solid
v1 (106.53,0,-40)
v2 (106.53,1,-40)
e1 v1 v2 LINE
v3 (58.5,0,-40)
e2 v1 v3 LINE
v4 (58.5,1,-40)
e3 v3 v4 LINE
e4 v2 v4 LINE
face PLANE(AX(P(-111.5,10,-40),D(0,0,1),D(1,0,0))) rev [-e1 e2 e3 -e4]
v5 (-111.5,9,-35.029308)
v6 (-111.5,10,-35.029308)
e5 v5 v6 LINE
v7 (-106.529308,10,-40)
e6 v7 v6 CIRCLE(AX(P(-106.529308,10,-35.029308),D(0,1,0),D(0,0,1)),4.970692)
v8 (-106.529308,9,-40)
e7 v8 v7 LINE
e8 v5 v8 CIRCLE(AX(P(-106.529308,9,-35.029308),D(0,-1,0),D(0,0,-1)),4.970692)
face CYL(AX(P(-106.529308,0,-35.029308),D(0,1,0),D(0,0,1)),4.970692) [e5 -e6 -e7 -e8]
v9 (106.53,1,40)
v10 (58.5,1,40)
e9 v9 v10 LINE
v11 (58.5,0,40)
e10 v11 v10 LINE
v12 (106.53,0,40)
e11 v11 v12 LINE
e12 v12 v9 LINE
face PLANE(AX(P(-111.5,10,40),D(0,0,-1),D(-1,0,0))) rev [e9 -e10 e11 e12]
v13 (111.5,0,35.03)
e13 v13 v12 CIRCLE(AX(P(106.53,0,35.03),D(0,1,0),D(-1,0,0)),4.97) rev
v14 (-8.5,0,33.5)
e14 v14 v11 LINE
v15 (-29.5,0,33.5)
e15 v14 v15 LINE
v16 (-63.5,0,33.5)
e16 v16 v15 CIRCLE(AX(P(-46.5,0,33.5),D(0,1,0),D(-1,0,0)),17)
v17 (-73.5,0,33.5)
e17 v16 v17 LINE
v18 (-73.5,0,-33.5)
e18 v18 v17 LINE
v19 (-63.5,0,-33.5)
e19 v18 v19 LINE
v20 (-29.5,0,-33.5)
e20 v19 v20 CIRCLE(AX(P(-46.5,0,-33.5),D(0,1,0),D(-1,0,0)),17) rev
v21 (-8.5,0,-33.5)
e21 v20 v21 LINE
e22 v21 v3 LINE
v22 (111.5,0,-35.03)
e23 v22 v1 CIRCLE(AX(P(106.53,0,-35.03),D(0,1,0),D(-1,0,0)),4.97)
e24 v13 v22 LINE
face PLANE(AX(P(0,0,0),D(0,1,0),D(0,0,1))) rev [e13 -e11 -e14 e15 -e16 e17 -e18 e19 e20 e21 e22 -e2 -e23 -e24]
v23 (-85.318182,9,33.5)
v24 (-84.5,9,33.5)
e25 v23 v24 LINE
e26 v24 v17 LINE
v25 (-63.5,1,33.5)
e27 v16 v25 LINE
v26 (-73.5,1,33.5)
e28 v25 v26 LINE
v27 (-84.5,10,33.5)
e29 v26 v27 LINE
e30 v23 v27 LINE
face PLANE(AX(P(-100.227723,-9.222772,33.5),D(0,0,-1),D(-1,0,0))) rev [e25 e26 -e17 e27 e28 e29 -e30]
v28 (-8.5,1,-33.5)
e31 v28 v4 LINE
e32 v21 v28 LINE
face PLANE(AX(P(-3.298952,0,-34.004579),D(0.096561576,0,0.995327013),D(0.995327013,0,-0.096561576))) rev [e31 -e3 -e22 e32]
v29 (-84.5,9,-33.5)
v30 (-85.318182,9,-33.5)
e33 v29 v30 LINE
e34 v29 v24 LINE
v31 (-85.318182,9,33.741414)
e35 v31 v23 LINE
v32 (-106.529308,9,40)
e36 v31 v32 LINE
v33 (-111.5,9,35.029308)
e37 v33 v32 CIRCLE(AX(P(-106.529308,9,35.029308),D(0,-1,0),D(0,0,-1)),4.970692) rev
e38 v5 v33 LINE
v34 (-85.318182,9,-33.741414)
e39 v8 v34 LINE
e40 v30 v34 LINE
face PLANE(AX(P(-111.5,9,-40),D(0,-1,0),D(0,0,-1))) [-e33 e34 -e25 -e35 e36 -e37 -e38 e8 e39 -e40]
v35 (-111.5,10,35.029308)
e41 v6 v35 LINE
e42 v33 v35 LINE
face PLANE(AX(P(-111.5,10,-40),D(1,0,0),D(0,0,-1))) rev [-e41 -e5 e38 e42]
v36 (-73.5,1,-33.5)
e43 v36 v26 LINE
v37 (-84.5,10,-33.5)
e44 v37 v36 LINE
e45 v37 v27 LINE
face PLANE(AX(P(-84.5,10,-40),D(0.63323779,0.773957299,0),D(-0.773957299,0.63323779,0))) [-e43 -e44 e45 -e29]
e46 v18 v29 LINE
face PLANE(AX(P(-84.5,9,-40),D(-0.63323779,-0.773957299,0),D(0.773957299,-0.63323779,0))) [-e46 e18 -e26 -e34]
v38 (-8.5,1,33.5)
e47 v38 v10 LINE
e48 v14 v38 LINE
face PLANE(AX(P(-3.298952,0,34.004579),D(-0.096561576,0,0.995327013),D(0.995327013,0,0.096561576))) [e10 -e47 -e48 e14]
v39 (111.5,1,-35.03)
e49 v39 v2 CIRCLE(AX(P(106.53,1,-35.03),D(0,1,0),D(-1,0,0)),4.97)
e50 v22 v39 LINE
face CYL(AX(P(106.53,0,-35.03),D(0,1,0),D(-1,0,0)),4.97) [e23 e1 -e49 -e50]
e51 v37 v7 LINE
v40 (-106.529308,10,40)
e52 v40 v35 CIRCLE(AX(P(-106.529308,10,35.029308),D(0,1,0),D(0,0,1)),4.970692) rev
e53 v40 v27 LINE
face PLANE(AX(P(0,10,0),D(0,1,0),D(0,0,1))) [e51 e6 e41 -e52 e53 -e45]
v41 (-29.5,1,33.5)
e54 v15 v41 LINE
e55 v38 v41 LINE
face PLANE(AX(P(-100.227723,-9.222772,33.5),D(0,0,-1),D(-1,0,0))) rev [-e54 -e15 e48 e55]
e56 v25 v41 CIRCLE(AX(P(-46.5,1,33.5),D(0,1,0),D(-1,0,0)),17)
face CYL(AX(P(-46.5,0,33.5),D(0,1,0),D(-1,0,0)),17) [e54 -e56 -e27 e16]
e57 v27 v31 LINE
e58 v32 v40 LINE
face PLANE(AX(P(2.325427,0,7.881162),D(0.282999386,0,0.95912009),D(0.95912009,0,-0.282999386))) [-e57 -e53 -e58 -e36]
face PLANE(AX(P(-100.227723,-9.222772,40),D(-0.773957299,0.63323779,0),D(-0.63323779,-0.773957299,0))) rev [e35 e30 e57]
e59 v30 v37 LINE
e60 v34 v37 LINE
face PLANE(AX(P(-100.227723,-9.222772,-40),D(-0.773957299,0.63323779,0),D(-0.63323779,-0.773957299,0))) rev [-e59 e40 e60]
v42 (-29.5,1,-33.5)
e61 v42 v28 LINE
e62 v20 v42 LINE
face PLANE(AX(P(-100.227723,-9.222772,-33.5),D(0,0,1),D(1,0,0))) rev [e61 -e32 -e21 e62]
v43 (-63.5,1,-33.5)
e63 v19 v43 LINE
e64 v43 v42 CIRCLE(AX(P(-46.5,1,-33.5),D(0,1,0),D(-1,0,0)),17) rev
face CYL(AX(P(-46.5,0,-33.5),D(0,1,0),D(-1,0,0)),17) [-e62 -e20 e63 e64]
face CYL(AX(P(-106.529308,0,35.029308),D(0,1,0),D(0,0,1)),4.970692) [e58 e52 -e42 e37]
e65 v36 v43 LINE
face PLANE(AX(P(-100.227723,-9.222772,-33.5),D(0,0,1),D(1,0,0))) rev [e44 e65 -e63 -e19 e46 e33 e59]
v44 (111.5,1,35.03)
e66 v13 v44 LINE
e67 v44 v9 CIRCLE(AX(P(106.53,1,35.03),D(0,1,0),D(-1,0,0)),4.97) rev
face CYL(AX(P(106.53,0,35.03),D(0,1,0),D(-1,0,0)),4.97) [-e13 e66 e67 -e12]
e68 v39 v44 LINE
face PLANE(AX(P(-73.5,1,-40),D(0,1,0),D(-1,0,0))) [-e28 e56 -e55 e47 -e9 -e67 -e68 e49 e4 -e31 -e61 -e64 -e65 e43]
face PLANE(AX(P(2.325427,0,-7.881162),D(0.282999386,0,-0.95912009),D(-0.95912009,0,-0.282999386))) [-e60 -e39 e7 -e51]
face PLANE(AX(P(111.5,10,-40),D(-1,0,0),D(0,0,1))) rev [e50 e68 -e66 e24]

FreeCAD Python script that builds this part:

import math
import FreeCAD as App
import Part
import Sketcher

V = App.Vector
Q = App.Units.Quantity

doc = App.newDocument("Part")
body = doc.addObject("PartDesign::Body", "Body")

# Sketch on XZ plane
sketch1 = body.newObject("Sketcher::SketchObject", "Sketch")
sketch1.AttachmentSupport = (doc.getObject("XZ_Plane"), [""])
sketch1.MapMode = "FlatFace"
sketch1.addGeometry([
    Part.LineSegment(V(-112, -40, 0), V(-112, 40, 0)),
    Part.LineSegment(V(-112, 40, 0), V(112, 40, 0)),
    Part.LineSegment(V(112, 40, 0), V(112, -40, 0)),
    Part.LineSegment(V(112, -40, 0), V(-112, -40, 0)),
], False)
sketch1.addConstraint([
    Sketcher.Constraint("Coincident", 0, 2, 1, 1),
    Sketcher.Constraint("Coincident", 1, 2, 2, 1),
    Sketcher.Constraint("Coincident", 2, 2, 3, 1),
    Sketcher.Constraint("Coincident", 3, 2, 0, 1),
    Sketcher.Constraint("Vertical", 0),
    Sketcher.Constraint("Horizontal", 1),
    Sketcher.Constraint("Vertical", 2),
    Sketcher.Constraint("Horizontal", 3),
    Sketcher.Constraint("Symmetric", 0, 2, 2, 2, -1, 1),
    Sketcher.Constraint("DistanceX", 1, 1, 1, 2, Q("223 mm")),
    Sketcher.Constraint("DistanceY", 0, 1, 0, 2, Q("80 mm")),
])
pad1 = body.newObject("PartDesign::Pad", "Pad")
pad1.Profile = sketch1
pad1.Length = 10
pad1.Reversed = True

# Sketch on XY plane
sketch2 = body.newObject("Sketcher::SketchObject", "Sketch001")
sketch2.AttachmentSupport = (doc.getObject("XY_Plane"), [""])
sketch2.MapMode = "FlatFace"
sketch2.AttachmentOffset = App.Placement(V(0, 0, 40), App.Rotation())
sketch2.addGeometry([
    Part.LineSegment(V(-136.2, 34.7, 0), V(-136.2, -24.7, 0)),  # 0
    Part.LineSegment(V(-136.2, -24.7, 0), V(136.2, -24.7, 0)),  # 1
    Part.LineSegment(V(136.2, -24.7, 0), V(136.2, 34.7, 0)),  # 2
    Part.LineSegment(V(136.2, 34.7, 0), V(-136.2, 34.7, 0)),  # 3
    Part.LineSegment(V(-111.5, 9, 0), V(-111.5, 10, 0)),  # 4
    Part.LineSegment(V(-111.5, 10, 0), V(-84.5, 10, 0)),  # 5
    Part.LineSegment(V(-84.5, 10, 0), V(-73.5, 1, 0)),  # 6
    Part.LineSegment(V(-73.5, 1, 0), V(111.5, 1, 0)),  # 7
    Part.LineSegment(V(111.5, 1, 0), V(111.5, 0, 0)),  # 8
    Part.LineSegment(V(111.5, 0, 0), V(-73.5, 0, 0)),  # 9
    Part.LineSegment(V(-73.5, 0, 0), V(-84.5, 9, 0)),  # 10
    Part.LineSegment(V(-84.5, 9, 0), V(-111.5, 9, 0)),  # 11
], False)
sketch2.addConstraint([
    Sketcher.Constraint("Coincident", 0, 2, 1, 1),
    Sketcher.Constraint("Coincident", 1, 2, 2, 1),
    Sketcher.Constraint("Coincident", 2, 2, 3, 1),
    Sketcher.Constraint("Coincident", 3, 2, 0, 1),
    Sketcher.Constraint("Coincident", 4, 2, 5, 1),
    Sketcher.Constraint("Coincident", 5, 2, 6, 1),
    Sketcher.Constraint("Coincident", 6, 2, 7, 1),
    Sketcher.Constraint("Coincident", 7, 2, 8, 1),
    Sketcher.Constraint("Coincident", 8, 2, 9, 1),
    Sketcher.Constraint("Coincident", 9, 2, 10, 1),
    Sketcher.Constraint("Coincident", 10, 2, 11, 1),
    Sketcher.Constraint("Coincident", 11, 2, 4, 1),
    Sketcher.Constraint("Vertical", 0),
    Sketcher.Constraint("Horizontal", 1),
    Sketcher.Constraint("Vertical", 2),
    Sketcher.Constraint("Horizontal", 3),
    Sketcher.Constraint("Vertical", 4),
    Sketcher.Constraint("Horizontal", 5),
    Sketcher.Constraint("Horizontal", 7),
    Sketcher.Constraint("Vertical", 8),
    Sketcher.Constraint("Horizontal", 9),
    Sketcher.Constraint("Horizontal", 11),
    Sketcher.Constraint("PointOnObject", 8, 2, -1),
    Sketcher.Constraint("Parallel", 6, 10),
    Sketcher.Constraint("Vertical", 6, 2, 9, 2),
    Sketcher.Constraint("Vertical", 5, 2, 10, 2),
    Sketcher.Constraint("DistanceX", 5, 1, 5, 2, Q("27 mm")),
    Sketcher.Constraint("DistanceX", 7, 1, 7, 2, Q("185 mm")),
    Sketcher.Constraint("DistanceY", 4, 1, 4, 2, Q("1 mm")),
    Sketcher.Constraint("DistanceY", -1, 1, 4, 2, Q("10 mm")),
    Sketcher.Constraint("DistanceX", 5, 2, 6, 2, Q("11 mm")),
    Sketcher.Constraint("DistanceX", 4, 2, -1, 1, Q("111.5 mm")),
    Sketcher.Constraint("DistanceX", 1, 1, 1, 2, Q("272.426 mm")),
    Sketcher.Constraint("DistanceY", 0, 2, 0, 1, Q("59.426 mm")),
    Sketcher.Constraint("DistanceX", 0, 2, -1, 1, Q("136.213 mm")),
    Sketcher.Constraint("DistanceY", 0, 2, -1, 1, Q("24.713 mm")),
])
pocket1 = body.newObject("PartDesign::Pocket", "Pocket")
pocket1.Profile = sketch2
pocket1.Type = "ThroughAll"

# Sketch on XZ plane
sketch3 = body.newObject("Sketcher::SketchObject", "Sketch002")
sketch3.AttachmentSupport = (doc.getObject("XZ_Plane"), [""])
sketch3.MapMode = "FlatFace"
sketch3.AttachmentOffset = App.Placement(V(0, 0, -10), App.Rotation())
sketch3.addGeometry([
    Part.LineSegment(V(-111.5, -40, 0), V(-111.5, -35, 0)),  # 0
    Part.ArcOfCircle(Part.Circle(V(-106.5, -35, 0), V(0, 0, 1), 5), math.radians(180), math.radians(270)),  # 1
    Part.LineSegment(V(-106.5, -40, 0), V(-111.5, -40, 0)),  # 2
    Part.ArcOfCircle(Part.Circle(V(-106.5, 35, 0), V(0, 0, 1), 5), math.radians(90), math.radians(180)),  # 3
    Part.LineSegment(V(-111.5, 35, 0), V(-111.5, 40, 0)),  # 4
    Part.LineSegment(V(-111.5, 40, 0), V(-106.5, 40, 0)),  # 5
], False)
sketch3.addConstraint([
    Sketcher.Constraint("Tangent", 0, 2, 1, 1),
    Sketcher.Constraint("Tangent", 1, 2, 2, 1),
    Sketcher.Constraint("Coincident", 2, 2, 0, 1),
    Sketcher.Constraint("Tangent", 3, 2, 4, 1),
    Sketcher.Constraint("Coincident", 4, 2, 5, 1),
    Sketcher.Constraint("Tangent", 5, 2, 3, 1),
    Sketcher.Constraint("Vertical", 0),
    Sketcher.Constraint("Horizontal", 2),
    Sketcher.Constraint("Vertical", 4),
    Sketcher.Constraint("Horizontal", 5),
    Sketcher.Constraint("Equal", 1, 3),
    Sketcher.Constraint("Symmetric", 1, 3, 3, 3, -1),
    Sketcher.Constraint("DistanceY", 1, 2, -1, 1, Q("40 mm")),
    Sketcher.Constraint("DistanceX", 0, 2, -1, 1, Q("111.5 mm")),
    Sketcher.Constraint("Radius", 1, Q("4.970692 mm")),
])
pocket2 = body.newObject("PartDesign::Pocket", "Pocket001")
pocket2.Profile = sketch3
pocket2.Type = "ThroughAll"
pocket2.Reversed = True

# Sketch on XZ plane
sketch4 = body.newObject("Sketcher::SketchObject", "Sketch003")
sketch4.AttachmentSupport = (doc.getObject("XZ_Plane"), [""])
sketch4.MapMode = "FlatFace"
sketch4.AttachmentOffset = App.Placement(V(0, 0, -10), App.Rotation())
sketch4.addGeometry([
    Part.LineSegment(V(-107, -40, 0), V(-84, -34, 0)),  # 0
    Part.LineSegment(V(-84, -34, 0), V(-84, -40, 0)),  # 1
    Part.LineSegment(V(-84, -40, 0), V(-107, -40, 0)),  # 2
    Part.LineSegment(V(-84, 40, 0), V(-84, 34, 0)),  # 3
    Part.LineSegment(V(-84, 34, 0), V(-107, 40, 0)),  # 4
    Part.LineSegment(V(-107, 40, 0), V(-84, 40, 0)),  # 5
], False)
sketch4.addConstraint([
    Sketcher.Constraint("Coincident", 0, 2, 1, 1),
    Sketcher.Constraint("Coincident", 1, 2, 2, 1),
    Sketcher.Constraint("Coincident", 2, 2, 0, 1),
    Sketcher.Constraint("Coincident", 3, 2, 4, 1),
    Sketcher.Constraint("Coincident", 4, 2, 5, 1),
    Sketcher.Constraint("Coincident", 5, 2, 3, 1),
    Sketcher.Constraint("Vertical", 1),
    Sketcher.Constraint("Horizontal", 2),
    Sketcher.Constraint("Vertical", 3),
    Sketcher.Constraint("Horizontal", 5),
    Sketcher.Constraint("Symmetric", 0, 2, 3, 2, -1),
    Sketcher.Constraint("Symmetric", 2, 2, 4, 2, -1),
    Sketcher.Constraint("DistanceY", 1, 2, 1, 1, Q("6.5 mm")),
    Sketcher.Constraint("DistanceY", 1, 2, -1, 1, Q("40 mm")),
    Sketcher.Constraint("DistanceX", 0, 2, -1, 1, Q("84.5 mm")),
    Sketcher.Constraint("DistanceX", 2, 2, 2, 1, Q("22.029308 mm")),
])
pocket3 = body.newObject("PartDesign::Pocket", "Pocket002")
pocket3.Profile = sketch4
pocket3.Type = "ThroughAll"
pocket3.Reversed = True

# Sketch on an angled plane
sketch5 = body.newObject("Sketcher::SketchObject", "Sketch004")
sketch5.Placement = App.Placement(V(-28.982673, -35.423267, 0), App.Rotation(V(0.773957299, -0.63323779, 0), V(0, 0, -0.999999999), V(0.63323779, 0.773957299, 0), "ZXY"))
sketch5.addGeometry([
    Part.LineSegment(V(-72, -33, 0), V(-72, -40, 0)),  # 0
    Part.LineSegment(V(-72, -40, 0), V(-58, -40, 0)),  # 1
    Part.LineSegment(V(-58, -40, 0), V(-58, -33, 0)),  # 2
    Part.LineSegment(V(-58, -33, 0), V(-72, -33, 0)),  # 3
    Part.LineSegment(V(-72, 40, 0), V(-72, 33, 0)),  # 4
    Part.LineSegment(V(-72, 33, 0), V(-58, 33, 0)),  # 5
    Part.LineSegment(V(-58, 33, 0), V(-58, 40, 0)),  # 6
    Part.LineSegment(V(-58, 40, 0), V(-72, 40, 0)),  # 7
], False)
sketch5.addConstraint([
    Sketcher.Constraint("Coincident", 0, 2, 1, 1),
    Sketcher.Constraint("Coincident", 1, 2, 2, 1),
    Sketcher.Constraint("Coincident", 2, 2, 3, 1),
    Sketcher.Constraint("Coincident", 3, 2, 0, 1),
    Sketcher.Constraint("Coincident", 4, 2, 5, 1),
    Sketcher.Constraint("Coincident", 5, 2, 6, 1),
    Sketcher.Constraint("Coincident", 6, 2, 7, 1),
    Sketcher.Constraint("Coincident", 7, 2, 4, 1),
    Sketcher.Constraint("Vertical", 0),
    Sketcher.Constraint("Horizontal", 1),
    Sketcher.Constraint("Vertical", 2),
    Sketcher.Constraint("Horizontal", 3),
    Sketcher.Constraint("Vertical", 4),
    Sketcher.Constraint("Horizontal", 5),
    Sketcher.Constraint("Vertical", 6),
    Sketcher.Constraint("Horizontal", 7),
    Sketcher.Constraint("Symmetric", 3, 2, 4, 2, -1),
    Sketcher.Constraint("Symmetric", 1, 2, 6, 2, -1),
    Sketcher.Constraint("DistanceY", 0, 2, 0, 1, Q("6.5 mm")),
    Sketcher.Constraint("DistanceY", 0, 2, -1, 1, Q("40 mm")),
    Sketcher.Constraint("DistanceX", 1, 1, 1, 2, Q("14.21267 mm")),
    Sketcher.Constraint("DistanceX", 1, 2, -1, 1, Q("57.519099 mm")),
])
pocket4 = body.newObject("PartDesign::Pocket", "Pocket003")
pocket4.Profile = sketch5
pocket4.Type = "ThroughAll"

# Sketch on XZ plane
sketch6 = body.newObject("Sketcher::SketchObject", "Sketch005")
sketch6.AttachmentSupport = (doc.getObject("XZ_Plane"), [""])
sketch6.MapMode = "FlatFace"
sketch6.AttachmentOffset = App.Placement(V(0, 0, -1), App.Rotation())
sketch6.addGeometry([
    Part.LineSegment(V(-74, -40, 0), V(-74, -34, 0)),  # 0
    Part.LineSegment(V(-74, -34, 0), V(-8, -34, 0)),  # 1
    Part.LineSegment(V(-8, -34, 0), V(-8, -40, 0)),  # 2
    Part.LineSegment(V(-8, -40, 0), V(-74, -40, 0)),  # 3
    Part.LineSegment(V(-74, 34, 0), V(-74, 40, 0)),  # 4
    Part.LineSegment(V(-74, 40, 0), V(-8, 40, 0)),  # 5
    Part.LineSegment(V(-8, 40, 0), V(-8, 34, 0)),  # 6
    Part.LineSegment(V(-8, 34, 0), V(-74, 34, 0)),  # 7
], False)
sketch6.addConstraint([
    Sketcher.Constraint("Coincident", 0, 2, 1, 1),
    Sketcher.Constraint("Coincident", 1, 2, 2, 1),
    Sketcher.Constraint("Coincident", 2, 2, 3, 1),
    Sketcher.Constraint("Coincident", 3, 2, 0, 1),
    Sketcher.Constraint("Coincident", 4, 2, 5, 1),
    Sketcher.Constraint("Coincident", 5, 2, 6, 1),
    Sketcher.Constraint("Coincident", 6, 2, 7, 1),
    Sketcher.Constraint("Coincident", 7, 2, 4, 1),
    Sketcher.Constraint("Vertical", 0),
    Sketcher.Constraint("Horizontal", 1),
    Sketcher.Constraint("Vertical", 2),
    Sketcher.Constraint("Horizontal", 3),
    Sketcher.Constraint("Vertical", 4),
    Sketcher.Constraint("Horizontal", 5),
    Sketcher.Constraint("Vertical", 6),
    Sketcher.Constraint("Horizontal", 7),
    Sketcher.Constraint("Symmetric", 3, 2, 4, 2, -1),
    Sketcher.Constraint("Symmetric", 1, 2, 6, 2, -1),
    Sketcher.Constraint("DistanceX", 1, 1, 1, 2, Q("65 mm")),
    Sketcher.Constraint("DistanceY", 0, 1, 0, 2, Q("6.5 mm")),
    Sketcher.Constraint("DistanceY", 2, 2, -1, 1, Q("40 mm")),
    Sketcher.Constraint("DistanceX", 0, 2, -1, 1, Q("73.5 mm")),
])
pocket5 = body.newObject("PartDesign::Pocket", "Pocket004")
pocket5.Profile = sketch6
pocket5.Type = "ThroughAll"
pocket5.Reversed = True

# Sketch on an angled plane
sketch7 = body.newObject("Sketcher::SketchObject", "Sketch006")
sketch7.Placement = App.Placement(V(-29.472772, -36.022277, 0), App.Rotation(V(0.773957299, -0.63323779, 0), V(0, 0, 0.999999999), V(-0.63323779, -0.773957299, 0), "ZXY"))
sketch7.addGeometry([
    Part.LineSegment(V(-57.5, -33.5, 0), V(-57.5, -40, 0)),  # 0
    Part.LineSegment(V(-57.5, -40, 0), V(-56.9, -40, 0)),  # 1
    Part.LineSegment(V(-56.9, -40, 0), V(-56.9, -33.5, 0)),  # 2
    Part.LineSegment(V(-56.9, -33.5, 0), V(-57.5, -33.5, 0)),  # 3
    Part.LineSegment(V(-57.5, 40, 0), V(-57.5, 33.5, 0)),  # 4
    Part.LineSegment(V(-57.5, 33.5, 0), V(-56.9, 33.5, 0)),  # 5
    Part.LineSegment(V(-56.9, 33.5, 0), V(-56.9, 40, 0)),  # 6
    Part.LineSegment(V(-56.9, 40, 0), V(-57.5, 40, 0)),  # 7
], False)
sketch7.addConstraint([
    Sketcher.Constraint("Coincident", 0, 2, 1, 1),
    Sketcher.Constraint("Coincident", 1, 2, 2, 1),
    Sketcher.Constraint("Coincident", 2, 2, 3, 1),
    Sketcher.Constraint("Coincident", 3, 2, 0, 1),
    Sketcher.Constraint("Coincident", 4, 2, 5, 1),
    Sketcher.Constraint("Coincident", 5, 2, 6, 1),
    Sketcher.Constraint("Coincident", 6, 2, 7, 1),
    Sketcher.Constraint("Coincident", 7, 2, 4, 1),
    Sketcher.Constraint("Vertical", 0),
    Sketcher.Constraint("Horizontal", 1),
    Sketcher.Constraint("Vertical", 2),
    Sketcher.Constraint("Horizontal", 3),
    Sketcher.Constraint("Vertical", 4),
    Sketcher.Constraint("Horizontal", 5),
    Sketcher.Constraint("Vertical", 6),
    Sketcher.Constraint("Horizontal", 7),
    Sketcher.Constraint("Symmetric", 3, 2, 4, 2, -1),
    Sketcher.Constraint("Symmetric", 1, 2, 6, 2, -1),
    Sketcher.Constraint("DistanceY", 0, 2, 0, 1, Q("6.5 mm")),
    Sketcher.Constraint("DistanceY", 0, 2, -1, 1, Q("40 mm")),
    Sketcher.Constraint("DistanceX", 0, 2, -1, 1, Q("57.519099 mm")),
    Sketcher.Constraint("DistanceX", 1, 1, 1, 2, Q("0.633238 mm")),
])
pocket6 = body.newObject("PartDesign::Pocket", "Pocket005")
pocket6.Profile = sketch7
pocket6.Type = "ThroughAll"

# Sketch on XZ plane
sketch8 = body.newObject("Sketcher::SketchObject", "Sketch007")
sketch8.AttachmentSupport = (doc.getObject("XZ_Plane"), [""])
sketch8.MapMode = "FlatFace"
sketch8.AttachmentOffset = App.Placement(V(0, 0, -1), App.Rotation())
sketch8.addGeometry([
    Part.LineSegment(V(-8, 40, 0), V(58, 40, 0)),  # 0
    Part.LineSegment(V(58, 40, 0), V(-8, 34, 0)),  # 1
    Part.LineSegment(V(-8, 34, 0), V(-8, 40, 0)),  # 2
    Part.LineSegment(V(-8, -34, 0), V(58, -40, 0)),  # 3
    Part.LineSegment(V(58, -40, 0), V(-8, -40, 0)),  # 4
    Part.LineSegment(V(-8, -40, 0), V(-8, -34, 0)),  # 5
], False)
sketch8.addConstraint([
    Sketcher.Constraint("Coincident", 0, 2, 1, 1),
    Sketcher.Constraint("Coincident", 1, 2, 2, 1),
    Sketcher.Constraint("Coincident", 2, 2, 0, 1),
    Sketcher.Constraint("Coincident", 3, 2, 4, 1),
    Sketcher.Constraint("Coincident", 4, 2, 5, 1),
    Sketcher.Constraint("Coincident", 5, 2, 3, 1),
    Sketcher.Constraint("Horizontal", 0),
    Sketcher.Constraint("Vertical", 2),
    Sketcher.Constraint("Horizontal", 4),
    Sketcher.Constraint("Vertical", 5),
    Sketcher.Constraint("Symmetric", 0, 2, 3, 2, -1),
    Sketcher.Constraint("Symmetric", 1, 2, 5, 2, -1),
    Sketcher.Constraint("DistanceX", 0, 1, 0, 2, Q("67 mm")),
    Sketcher.Constraint("DistanceY", 2, 1, 2, 2, Q("6.5 mm")),
    Sketcher.Constraint("DistanceY", -1, 1, 0, 2, Q("40 mm")),
    Sketcher.Constraint("DistanceX", -1, 1, 0, 2, Q("58.5 mm")),
])
pocket7 = body.newObject("PartDesign::Pocket", "Pocket006")
pocket7.Profile = sketch8
pocket7.Type = "ThroughAll"
pocket7.Reversed = True

# Sketch on XZ plane
sketch9 = body.newObject("Sketcher::SketchObject", "Sketch008")
sketch9.AttachmentSupport = (doc.getObject("XZ_Plane"), [""])
sketch9.MapMode = "FlatFace"
sketch9.AttachmentOffset = App.Placement(V(0, 0, -1), App.Rotation())
sketch9.addGeometry([
    Part.LineSegment(V(111.5, -40, 0), V(106.5, -40, 0)),  # 0
    Part.ArcOfCircle(Part.Circle(V(106.5, -35, 0), V(0, 0, 1), 5), math.radians(-90), math.radians(0)),  # 1
    Part.LineSegment(V(111.5, -35, 0), V(111.5, -40, 0)),  # 2
    Part.LineSegment(V(111.5, 40, 0), V(111.5, 35, 0)),  # 3
    Part.ArcOfCircle(Part.Circle(V(106.5, 35, 0), V(0, 0, 1), 5), math.radians(0), math.radians(90)),  # 4
    Part.LineSegment(V(106.5, 40, 0), V(111.5, 40, 0)),  # 5
], False)
sketch9.addConstraint([
    Sketcher.Constraint("Tangent", 0, 2, 1, 1),
    Sketcher.Constraint("Tangent", 1, 2, 2, 1),
    Sketcher.Constraint("Coincident", 2, 2, 0, 1),
    Sketcher.Constraint("Tangent", 3, 2, 4, 1),
    Sketcher.Constraint("Tangent", 4, 2, 5, 1),
    Sketcher.Constraint("Coincident", 5, 2, 3, 1),
    Sketcher.Constraint("Horizontal", 0),
    Sketcher.Constraint("Vertical", 2),
    Sketcher.Constraint("Vertical", 3),
    Sketcher.Constraint("Horizontal", 5),
    Sketcher.Constraint("Equal", 1, 4),
    Sketcher.Constraint("Symmetric", 1, 3, 4, 3, -1),
    Sketcher.Constraint("Radius", 1, Q("4.97 mm")),
    Sketcher.Constraint("DistanceY", 0, 2, -1, 1, Q("40 mm")),
    Sketcher.Constraint("DistanceX", -1, 1, 1, 2, Q("111.5 mm")),
])
pocket8 = body.newObject("PartDesign::Pocket", "Pocket007")
pocket8.Profile = sketch9
pocket8.Type = "ThroughAll"
pocket8.Reversed = True

# Sketch on XZ plane
sketch10 = body.newObject("Sketcher::SketchObject", "Sketch009")
sketch10.AttachmentSupport = (doc.getObject("XZ_Plane"), [""])
sketch10.MapMode = "FlatFace"
sketch10.AttachmentOffset = App.Placement(V(0, 0, -1), App.Rotation())
sketch10.addGeometry([
    Part.Circle(V(-46, -34, 0), V(0, 0, 1), 17),
    Part.Circle(V(-46, 34, 0), V(0, 0, 1), 17),
], False)
sketch10.addConstraint([
    Sketcher.Constraint("Equal", 0, 1),
    Sketcher.Constraint("Symmetric", 0, 3, 1, 3, -1),
    Sketcher.Constraint("Diameter", 0, Q("34 mm")),
    Sketcher.Constraint("DistanceY", 0, 3, 1, 3, Q("67 mm")),
    Sketcher.Constraint("DistanceX", 0, 3, -1, 1, Q("46.5 mm")),
])
pad2 = body.newObject("PartDesign::Pad", "Pad001")
pad2.Profile = sketch10
pad2.Length = 1

doc.recompute()
